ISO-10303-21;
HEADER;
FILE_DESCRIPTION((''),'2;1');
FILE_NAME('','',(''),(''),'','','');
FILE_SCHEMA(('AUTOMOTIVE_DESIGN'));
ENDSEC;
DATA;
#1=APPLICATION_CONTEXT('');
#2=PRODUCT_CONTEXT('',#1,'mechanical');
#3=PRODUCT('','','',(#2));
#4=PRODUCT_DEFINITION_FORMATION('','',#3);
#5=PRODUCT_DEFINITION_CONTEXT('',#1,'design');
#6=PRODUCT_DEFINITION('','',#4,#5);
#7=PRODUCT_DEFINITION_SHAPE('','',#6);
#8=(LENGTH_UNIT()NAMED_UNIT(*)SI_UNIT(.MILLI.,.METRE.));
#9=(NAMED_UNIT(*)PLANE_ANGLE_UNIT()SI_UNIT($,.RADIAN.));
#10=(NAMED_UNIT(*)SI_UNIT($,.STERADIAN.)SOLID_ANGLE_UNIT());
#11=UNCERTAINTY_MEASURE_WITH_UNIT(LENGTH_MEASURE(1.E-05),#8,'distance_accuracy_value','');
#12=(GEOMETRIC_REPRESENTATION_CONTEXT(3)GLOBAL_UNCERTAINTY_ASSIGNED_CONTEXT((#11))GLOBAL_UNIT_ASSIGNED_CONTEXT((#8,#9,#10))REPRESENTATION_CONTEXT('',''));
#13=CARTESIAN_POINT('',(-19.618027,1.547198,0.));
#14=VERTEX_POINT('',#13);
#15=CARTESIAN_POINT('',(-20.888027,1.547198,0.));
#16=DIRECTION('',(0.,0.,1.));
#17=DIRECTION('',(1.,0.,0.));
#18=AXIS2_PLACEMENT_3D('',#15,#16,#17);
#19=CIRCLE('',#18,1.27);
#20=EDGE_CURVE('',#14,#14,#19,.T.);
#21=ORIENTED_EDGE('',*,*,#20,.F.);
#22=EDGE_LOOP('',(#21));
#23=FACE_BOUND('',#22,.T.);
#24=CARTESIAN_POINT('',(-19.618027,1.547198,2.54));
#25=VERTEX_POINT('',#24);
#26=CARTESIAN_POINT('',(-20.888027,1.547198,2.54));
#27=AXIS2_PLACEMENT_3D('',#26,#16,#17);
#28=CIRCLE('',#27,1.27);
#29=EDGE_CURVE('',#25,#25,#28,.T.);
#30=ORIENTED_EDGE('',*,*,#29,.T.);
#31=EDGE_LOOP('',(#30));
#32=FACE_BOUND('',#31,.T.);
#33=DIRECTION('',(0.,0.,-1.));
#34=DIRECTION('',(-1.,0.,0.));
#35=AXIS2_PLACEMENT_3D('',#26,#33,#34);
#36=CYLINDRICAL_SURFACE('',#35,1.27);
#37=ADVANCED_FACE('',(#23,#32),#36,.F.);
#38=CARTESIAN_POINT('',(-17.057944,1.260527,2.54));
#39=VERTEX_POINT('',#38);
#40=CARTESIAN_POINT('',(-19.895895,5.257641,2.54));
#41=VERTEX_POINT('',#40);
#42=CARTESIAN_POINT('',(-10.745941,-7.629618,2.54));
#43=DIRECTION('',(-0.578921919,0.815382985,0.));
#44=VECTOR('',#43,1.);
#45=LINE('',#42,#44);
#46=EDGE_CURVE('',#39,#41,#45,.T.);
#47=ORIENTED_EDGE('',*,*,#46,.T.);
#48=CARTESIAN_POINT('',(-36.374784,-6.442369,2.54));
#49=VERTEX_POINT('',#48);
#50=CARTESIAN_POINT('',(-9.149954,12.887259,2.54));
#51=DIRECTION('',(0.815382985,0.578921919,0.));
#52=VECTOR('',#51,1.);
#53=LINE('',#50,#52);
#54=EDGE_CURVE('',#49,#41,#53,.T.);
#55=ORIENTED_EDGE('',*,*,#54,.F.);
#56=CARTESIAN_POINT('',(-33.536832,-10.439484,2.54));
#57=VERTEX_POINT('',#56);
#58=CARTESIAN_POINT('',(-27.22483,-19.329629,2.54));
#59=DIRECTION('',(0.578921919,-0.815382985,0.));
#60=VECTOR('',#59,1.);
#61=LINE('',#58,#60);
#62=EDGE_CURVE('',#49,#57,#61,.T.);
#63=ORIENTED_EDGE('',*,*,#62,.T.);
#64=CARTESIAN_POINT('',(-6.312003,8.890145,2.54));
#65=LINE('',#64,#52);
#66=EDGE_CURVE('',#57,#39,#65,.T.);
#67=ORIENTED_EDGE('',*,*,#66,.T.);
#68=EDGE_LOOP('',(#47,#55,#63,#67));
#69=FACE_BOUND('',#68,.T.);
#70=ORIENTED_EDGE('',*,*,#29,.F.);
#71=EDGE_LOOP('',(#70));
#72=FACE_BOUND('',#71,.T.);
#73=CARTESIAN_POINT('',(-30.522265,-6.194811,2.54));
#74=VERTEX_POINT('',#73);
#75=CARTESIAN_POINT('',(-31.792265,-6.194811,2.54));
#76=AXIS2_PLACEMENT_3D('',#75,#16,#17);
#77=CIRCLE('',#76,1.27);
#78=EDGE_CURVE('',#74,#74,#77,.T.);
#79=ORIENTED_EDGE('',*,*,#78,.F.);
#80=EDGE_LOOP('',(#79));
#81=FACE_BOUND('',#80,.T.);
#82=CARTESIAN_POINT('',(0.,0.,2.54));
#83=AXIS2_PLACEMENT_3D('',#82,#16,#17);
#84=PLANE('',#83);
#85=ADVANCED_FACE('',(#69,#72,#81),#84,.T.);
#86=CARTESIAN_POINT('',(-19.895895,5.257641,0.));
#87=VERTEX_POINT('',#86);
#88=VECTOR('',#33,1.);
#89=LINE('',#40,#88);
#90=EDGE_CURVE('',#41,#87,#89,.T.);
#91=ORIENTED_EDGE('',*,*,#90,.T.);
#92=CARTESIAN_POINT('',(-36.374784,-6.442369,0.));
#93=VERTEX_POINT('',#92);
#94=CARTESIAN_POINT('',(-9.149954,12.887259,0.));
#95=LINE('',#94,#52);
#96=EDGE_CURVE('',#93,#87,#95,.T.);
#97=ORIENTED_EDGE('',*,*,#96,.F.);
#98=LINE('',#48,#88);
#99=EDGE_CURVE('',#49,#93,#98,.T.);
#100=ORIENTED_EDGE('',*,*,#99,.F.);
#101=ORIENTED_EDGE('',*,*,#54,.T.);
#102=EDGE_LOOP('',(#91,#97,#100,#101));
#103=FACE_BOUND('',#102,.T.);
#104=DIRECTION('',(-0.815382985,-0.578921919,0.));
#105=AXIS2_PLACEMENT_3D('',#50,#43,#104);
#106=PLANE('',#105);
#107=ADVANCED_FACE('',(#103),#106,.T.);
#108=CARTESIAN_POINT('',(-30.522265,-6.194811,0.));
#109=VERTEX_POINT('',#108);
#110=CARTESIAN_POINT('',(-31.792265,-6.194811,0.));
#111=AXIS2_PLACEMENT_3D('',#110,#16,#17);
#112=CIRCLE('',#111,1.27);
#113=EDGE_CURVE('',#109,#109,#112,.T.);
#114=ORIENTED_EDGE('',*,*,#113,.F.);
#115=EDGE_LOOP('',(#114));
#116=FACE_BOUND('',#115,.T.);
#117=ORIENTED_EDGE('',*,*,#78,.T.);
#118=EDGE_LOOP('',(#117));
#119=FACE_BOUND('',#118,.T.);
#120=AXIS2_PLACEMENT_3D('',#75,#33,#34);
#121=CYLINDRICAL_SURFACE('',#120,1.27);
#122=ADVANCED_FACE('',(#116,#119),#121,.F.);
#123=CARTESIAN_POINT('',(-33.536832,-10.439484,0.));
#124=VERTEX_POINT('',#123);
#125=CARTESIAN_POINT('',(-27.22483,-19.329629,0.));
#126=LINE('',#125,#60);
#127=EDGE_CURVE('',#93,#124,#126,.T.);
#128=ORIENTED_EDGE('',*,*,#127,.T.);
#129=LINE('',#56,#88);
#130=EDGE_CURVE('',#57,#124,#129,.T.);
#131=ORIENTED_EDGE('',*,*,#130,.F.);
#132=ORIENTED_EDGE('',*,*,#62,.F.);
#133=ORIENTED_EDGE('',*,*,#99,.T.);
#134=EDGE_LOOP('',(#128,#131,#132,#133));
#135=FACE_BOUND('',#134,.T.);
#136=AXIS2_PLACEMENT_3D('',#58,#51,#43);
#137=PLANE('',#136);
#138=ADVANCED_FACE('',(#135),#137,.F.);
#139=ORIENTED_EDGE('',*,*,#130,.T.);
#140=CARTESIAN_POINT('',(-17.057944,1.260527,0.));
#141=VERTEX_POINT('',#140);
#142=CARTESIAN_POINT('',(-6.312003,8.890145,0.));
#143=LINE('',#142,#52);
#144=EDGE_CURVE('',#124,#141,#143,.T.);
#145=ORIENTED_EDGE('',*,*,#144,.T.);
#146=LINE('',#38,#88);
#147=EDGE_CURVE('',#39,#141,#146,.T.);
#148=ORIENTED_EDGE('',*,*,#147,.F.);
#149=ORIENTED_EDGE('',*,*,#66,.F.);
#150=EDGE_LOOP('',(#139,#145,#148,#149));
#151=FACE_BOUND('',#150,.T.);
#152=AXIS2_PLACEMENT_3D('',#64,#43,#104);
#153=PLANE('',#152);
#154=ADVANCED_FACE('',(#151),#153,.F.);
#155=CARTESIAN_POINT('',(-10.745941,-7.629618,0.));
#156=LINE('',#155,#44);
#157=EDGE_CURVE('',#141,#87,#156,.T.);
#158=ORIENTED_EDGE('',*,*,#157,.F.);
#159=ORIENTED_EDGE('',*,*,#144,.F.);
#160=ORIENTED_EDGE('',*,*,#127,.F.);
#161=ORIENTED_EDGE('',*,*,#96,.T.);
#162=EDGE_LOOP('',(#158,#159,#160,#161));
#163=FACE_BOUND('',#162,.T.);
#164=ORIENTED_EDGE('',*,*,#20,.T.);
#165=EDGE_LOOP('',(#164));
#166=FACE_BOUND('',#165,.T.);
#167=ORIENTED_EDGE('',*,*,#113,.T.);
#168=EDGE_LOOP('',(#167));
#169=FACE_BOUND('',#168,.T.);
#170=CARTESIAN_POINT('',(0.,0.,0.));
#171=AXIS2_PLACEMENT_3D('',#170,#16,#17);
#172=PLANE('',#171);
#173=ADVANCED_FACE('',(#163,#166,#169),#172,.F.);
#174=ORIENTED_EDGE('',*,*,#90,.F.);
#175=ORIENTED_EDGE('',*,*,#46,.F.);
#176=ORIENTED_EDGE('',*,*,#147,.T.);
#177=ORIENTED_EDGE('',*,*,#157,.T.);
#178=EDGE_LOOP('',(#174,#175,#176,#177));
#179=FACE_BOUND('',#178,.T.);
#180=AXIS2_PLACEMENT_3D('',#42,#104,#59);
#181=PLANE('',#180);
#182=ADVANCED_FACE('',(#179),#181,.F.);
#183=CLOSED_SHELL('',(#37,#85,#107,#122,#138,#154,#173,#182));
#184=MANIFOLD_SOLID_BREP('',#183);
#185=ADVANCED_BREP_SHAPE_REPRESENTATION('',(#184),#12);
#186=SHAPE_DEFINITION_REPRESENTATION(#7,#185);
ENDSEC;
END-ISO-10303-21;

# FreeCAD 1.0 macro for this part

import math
import FreeCAD as App
import Part
import Sketcher
from FreeCAD import Vector
Q = App.Units.Quantity


def add_polygon(sketch, points):
    """Adds a closed chain of lines whose ends are joined by coincident constraints."""
    first, n = sketch.GeometryCount, len(points)
    for a, b in zip(points, points[1:] + points[:1]):
        sketch.addGeometry(Part.LineSegment(App.Vector(*a, 0), App.Vector(*b, 0)), False)
    for i in range(n):
        sketch.addConstraint(Sketcher.Constraint("Coincident", first + i, 2, first + (i + 1) % n, 1))

doc = App.newDocument("Part")
body = doc.addObject("PartDesign::Body", "Body")

# Sketch on XY plane
sketch1 = body.newObject("Sketcher::SketchObject", "Sketch")
sketch1.AttachmentSupport = (doc.getObject("XY_Plane"), [""])
sketch1.MapMode = "FlatFace"
add_polygon(sketch1, [(-19.895895, 5.257641), (-22.301043, 3.549986), (-33.211241, -4.196254), (-36.374784, -6.442369), (-34.955808, -8.440927), (-33.536832, -10.439484), (-30.373289, -8.193368), (-19.47501, -0.45559), (-17.057944, 1.260527), (-18.47692, 3.259084)])  # lines 0-9
sketch1.addGeometry(Part.ArcOfCircle(Part.Circle(Vector(-31.792265, -6.194811, 0), Vector(0, 0, 1), 1.27), math.radians(125.374752), math.radians(215.374752)), False)  # 10
sketch1.addGeometry(Part.ArcOfCircle(Part.Circle(Vector(-31.792265, -6.194811, 0), Vector(0, 0, 1), 1.27), math.radians(35.374752), math.radians(125.374752)), False)  # 11
sketch1.addGeometry(Part.ArcOfCircle(Part.Circle(Vector(-31.792265, -6.194811, 0), Vector(0, 0, 1), 1.27), math.radians(0), math.radians(35.374752)), False)  # 12
sketch1.addGeometry(Part.ArcOfCircle(Part.Circle(Vector(-31.792265, -6.194811, 0), Vector(0, 0, 1), 1.27), math.radians(-54.625248), math.radians(0)), False)  # 13
sketch1.addGeometry(Part.ArcOfCircle(Part.Circle(Vector(-31.792265, -6.194811, 0), Vector(0, 0, 1), 1.27), math.radians(-144.625248), math.radians(-54.625248)), False)  # 14
sketch1.addGeometry(Part.ArcOfCircle(Part.Circle(Vector(-20.888027, 1.547198, 0), Vector(0, 0, 1), 1.27), math.radians(35.374752), math.radians(125.203919)), False)  # 15
sketch1.addGeometry(Part.ArcOfCircle(Part.Circle(Vector(-20.888027, 1.547198, 0), Vector(0, 0, 1), 1.27), math.radians(0), math.radians(35.374752)), False)  # 16
sketch1.addGeometry(Part.ArcOfCircle(Part.Circle(Vector(-20.888027, 1.547198, 0), Vector(0, 0, 1), 1.27), math.radians(-54.796081), math.radians(0)), False)  # 17
sketch1.addGeometry(Part.ArcOfCircle(Part.Circle(Vector(-20.888027, 1.547198, 0), Vector(0, 0, 1), 1.27), math.radians(-144.625248), math.radians(-54.796081)), False)  # 18
sketch1.addGeometry(Part.ArcOfCircle(Part.Circle(Vector(-20.888027, 1.547198, 0), Vector(0, 0, 1), 1.27), math.radians(125.203919), math.radians(215.374752)), False)  # 19
sketch1.addConstraint([
    Sketcher.Constraint("Tangent", 10, 1, 11, 2),
    Sketcher.Constraint("Tangent", 11, 1, 12, 2),
    Sketcher.Constraint("Tangent", 12, 1, 13, 2),
    Sketcher.Constraint("Tangent", 13, 1, 14, 2),
    Sketcher.Constraint("Tangent", 14, 1, 10, 2),
    Sketcher.Constraint("Tangent", 15, 1, 16, 2),
    Sketcher.Constraint("Tangent", 16, 1, 17, 2),
    Sketcher.Constraint("Tangent", 17, 1, 18, 2),
    Sketcher.Constraint("Tangent", 18, 1, 19, 2),
    Sketcher.Constraint("Tangent", 19, 1, 15, 2),
    Sketcher.Constraint("Coincident", 12, 3, 10, 3),
    Sketcher.Constraint("Coincident", 17, 3, 15, 3),
    Sketcher.Constraint("Equal", 14, 15),
    Sketcher.Constraint("Parallel", 0, 1),
    Sketcher.Constraint("Parallel", 1, 2),
    Sketcher.Constraint("Perpendicular", 2, 3),
    Sketcher.Constraint("Parallel", 3, 4),
    Sketcher.Constraint("Perpendicular", 4, 5),
    Sketcher.Constraint("Parallel", 5, 6),
    Sketcher.Constraint("Parallel", 6, 7),
    Sketcher.Constraint("Perpendicular", 7, 8),
    Sketcher.Constraint("Parallel", 8, 9),
    Sketcher.Constraint("Horizontal", 14, 3, 12, 1),
    Sketcher.Constraint("Horizontal", 19, 3, 16, 1),
    Sketcher.Constraint("Equal", 3, 4),
    Sketcher.Constraint("Equal", 2, 5),
    Sketcher.Constraint("Equal", 4, 8),
    Sketcher.Constraint("Radius", 10, Q("0.05 in")),
    Sketcher.Constraint("DistanceY", -1, 1, 15, 3, Q("1.547198 mm")),
    Sketcher.Constraint("DistanceX", 14, 1, -1, 1, Q("32.827801 mm")),
    Sketcher.Constraint("Distance", 6, Q("13.365841 mm")),
    Sketcher.Constraint("Distance", 7, Q("2.964332 mm")),
    Sketcher.Constraint("DistanceY", 10, 3, -1, 1, Q("6.194811 mm")),
    Sketcher.Constraint("DistanceX", 1, 2, -1, 1, Q("33.211241 mm")),
    Sketcher.Constraint("DistanceY", 2, 2, -1, 1, Q("6.442369 mm")),
    Sketcher.Constraint("DistanceX", 3, 2, -1, 1, Q("34.955808 mm")),
    Sketcher.Constraint("DistanceX", 5, 2, -1, 1, Q("30.373289 mm")),
    Sketcher.Constraint("DistanceY", 5, 2, -1, 1, Q("8.193368 mm")),
    Sketcher.Constraint("DistanceX", 11, 1, -1, 1, Q("30.756728 mm")),
    Sketcher.Constraint("DistanceY", 11, 1, -1, 1, Q("5.45958 mm")),
    Sketcher.Constraint("DistanceX", 15, 1, -1, 1, Q("19.85249 mm")),
    Sketcher.Constraint("DistanceY", -1, 1, 15, 1, Q("2.282429 mm")),
    Sketcher.Constraint("DistanceY", -1, 1, 19, 1, Q("2.584922 mm")),
    Sketcher.Constraint("DistanceY", 16, 3, 0, 2, Q("2.002788 mm")),
    Sketcher.Constraint("DistanceY", 10, 1, 1, 2, Q("0.963021 mm")),
    Sketcher.Constraint("DistanceX", 13, 1, 12, 1, Q("0.534769 mm")),
    Sketcher.Constraint("DistanceX", 17, 1, 16, 1, Q("0.53786 mm")),
    Sketcher.Constraint("DistanceY", 18, 1, 16, 3, Q("0.735231 mm")),
])
pad1 = body.newObject("PartDesign::Pad", "Pad")
pad1.Profile = sketch1
pad1.Length = Q("0.1 in")

doc.recompute()
